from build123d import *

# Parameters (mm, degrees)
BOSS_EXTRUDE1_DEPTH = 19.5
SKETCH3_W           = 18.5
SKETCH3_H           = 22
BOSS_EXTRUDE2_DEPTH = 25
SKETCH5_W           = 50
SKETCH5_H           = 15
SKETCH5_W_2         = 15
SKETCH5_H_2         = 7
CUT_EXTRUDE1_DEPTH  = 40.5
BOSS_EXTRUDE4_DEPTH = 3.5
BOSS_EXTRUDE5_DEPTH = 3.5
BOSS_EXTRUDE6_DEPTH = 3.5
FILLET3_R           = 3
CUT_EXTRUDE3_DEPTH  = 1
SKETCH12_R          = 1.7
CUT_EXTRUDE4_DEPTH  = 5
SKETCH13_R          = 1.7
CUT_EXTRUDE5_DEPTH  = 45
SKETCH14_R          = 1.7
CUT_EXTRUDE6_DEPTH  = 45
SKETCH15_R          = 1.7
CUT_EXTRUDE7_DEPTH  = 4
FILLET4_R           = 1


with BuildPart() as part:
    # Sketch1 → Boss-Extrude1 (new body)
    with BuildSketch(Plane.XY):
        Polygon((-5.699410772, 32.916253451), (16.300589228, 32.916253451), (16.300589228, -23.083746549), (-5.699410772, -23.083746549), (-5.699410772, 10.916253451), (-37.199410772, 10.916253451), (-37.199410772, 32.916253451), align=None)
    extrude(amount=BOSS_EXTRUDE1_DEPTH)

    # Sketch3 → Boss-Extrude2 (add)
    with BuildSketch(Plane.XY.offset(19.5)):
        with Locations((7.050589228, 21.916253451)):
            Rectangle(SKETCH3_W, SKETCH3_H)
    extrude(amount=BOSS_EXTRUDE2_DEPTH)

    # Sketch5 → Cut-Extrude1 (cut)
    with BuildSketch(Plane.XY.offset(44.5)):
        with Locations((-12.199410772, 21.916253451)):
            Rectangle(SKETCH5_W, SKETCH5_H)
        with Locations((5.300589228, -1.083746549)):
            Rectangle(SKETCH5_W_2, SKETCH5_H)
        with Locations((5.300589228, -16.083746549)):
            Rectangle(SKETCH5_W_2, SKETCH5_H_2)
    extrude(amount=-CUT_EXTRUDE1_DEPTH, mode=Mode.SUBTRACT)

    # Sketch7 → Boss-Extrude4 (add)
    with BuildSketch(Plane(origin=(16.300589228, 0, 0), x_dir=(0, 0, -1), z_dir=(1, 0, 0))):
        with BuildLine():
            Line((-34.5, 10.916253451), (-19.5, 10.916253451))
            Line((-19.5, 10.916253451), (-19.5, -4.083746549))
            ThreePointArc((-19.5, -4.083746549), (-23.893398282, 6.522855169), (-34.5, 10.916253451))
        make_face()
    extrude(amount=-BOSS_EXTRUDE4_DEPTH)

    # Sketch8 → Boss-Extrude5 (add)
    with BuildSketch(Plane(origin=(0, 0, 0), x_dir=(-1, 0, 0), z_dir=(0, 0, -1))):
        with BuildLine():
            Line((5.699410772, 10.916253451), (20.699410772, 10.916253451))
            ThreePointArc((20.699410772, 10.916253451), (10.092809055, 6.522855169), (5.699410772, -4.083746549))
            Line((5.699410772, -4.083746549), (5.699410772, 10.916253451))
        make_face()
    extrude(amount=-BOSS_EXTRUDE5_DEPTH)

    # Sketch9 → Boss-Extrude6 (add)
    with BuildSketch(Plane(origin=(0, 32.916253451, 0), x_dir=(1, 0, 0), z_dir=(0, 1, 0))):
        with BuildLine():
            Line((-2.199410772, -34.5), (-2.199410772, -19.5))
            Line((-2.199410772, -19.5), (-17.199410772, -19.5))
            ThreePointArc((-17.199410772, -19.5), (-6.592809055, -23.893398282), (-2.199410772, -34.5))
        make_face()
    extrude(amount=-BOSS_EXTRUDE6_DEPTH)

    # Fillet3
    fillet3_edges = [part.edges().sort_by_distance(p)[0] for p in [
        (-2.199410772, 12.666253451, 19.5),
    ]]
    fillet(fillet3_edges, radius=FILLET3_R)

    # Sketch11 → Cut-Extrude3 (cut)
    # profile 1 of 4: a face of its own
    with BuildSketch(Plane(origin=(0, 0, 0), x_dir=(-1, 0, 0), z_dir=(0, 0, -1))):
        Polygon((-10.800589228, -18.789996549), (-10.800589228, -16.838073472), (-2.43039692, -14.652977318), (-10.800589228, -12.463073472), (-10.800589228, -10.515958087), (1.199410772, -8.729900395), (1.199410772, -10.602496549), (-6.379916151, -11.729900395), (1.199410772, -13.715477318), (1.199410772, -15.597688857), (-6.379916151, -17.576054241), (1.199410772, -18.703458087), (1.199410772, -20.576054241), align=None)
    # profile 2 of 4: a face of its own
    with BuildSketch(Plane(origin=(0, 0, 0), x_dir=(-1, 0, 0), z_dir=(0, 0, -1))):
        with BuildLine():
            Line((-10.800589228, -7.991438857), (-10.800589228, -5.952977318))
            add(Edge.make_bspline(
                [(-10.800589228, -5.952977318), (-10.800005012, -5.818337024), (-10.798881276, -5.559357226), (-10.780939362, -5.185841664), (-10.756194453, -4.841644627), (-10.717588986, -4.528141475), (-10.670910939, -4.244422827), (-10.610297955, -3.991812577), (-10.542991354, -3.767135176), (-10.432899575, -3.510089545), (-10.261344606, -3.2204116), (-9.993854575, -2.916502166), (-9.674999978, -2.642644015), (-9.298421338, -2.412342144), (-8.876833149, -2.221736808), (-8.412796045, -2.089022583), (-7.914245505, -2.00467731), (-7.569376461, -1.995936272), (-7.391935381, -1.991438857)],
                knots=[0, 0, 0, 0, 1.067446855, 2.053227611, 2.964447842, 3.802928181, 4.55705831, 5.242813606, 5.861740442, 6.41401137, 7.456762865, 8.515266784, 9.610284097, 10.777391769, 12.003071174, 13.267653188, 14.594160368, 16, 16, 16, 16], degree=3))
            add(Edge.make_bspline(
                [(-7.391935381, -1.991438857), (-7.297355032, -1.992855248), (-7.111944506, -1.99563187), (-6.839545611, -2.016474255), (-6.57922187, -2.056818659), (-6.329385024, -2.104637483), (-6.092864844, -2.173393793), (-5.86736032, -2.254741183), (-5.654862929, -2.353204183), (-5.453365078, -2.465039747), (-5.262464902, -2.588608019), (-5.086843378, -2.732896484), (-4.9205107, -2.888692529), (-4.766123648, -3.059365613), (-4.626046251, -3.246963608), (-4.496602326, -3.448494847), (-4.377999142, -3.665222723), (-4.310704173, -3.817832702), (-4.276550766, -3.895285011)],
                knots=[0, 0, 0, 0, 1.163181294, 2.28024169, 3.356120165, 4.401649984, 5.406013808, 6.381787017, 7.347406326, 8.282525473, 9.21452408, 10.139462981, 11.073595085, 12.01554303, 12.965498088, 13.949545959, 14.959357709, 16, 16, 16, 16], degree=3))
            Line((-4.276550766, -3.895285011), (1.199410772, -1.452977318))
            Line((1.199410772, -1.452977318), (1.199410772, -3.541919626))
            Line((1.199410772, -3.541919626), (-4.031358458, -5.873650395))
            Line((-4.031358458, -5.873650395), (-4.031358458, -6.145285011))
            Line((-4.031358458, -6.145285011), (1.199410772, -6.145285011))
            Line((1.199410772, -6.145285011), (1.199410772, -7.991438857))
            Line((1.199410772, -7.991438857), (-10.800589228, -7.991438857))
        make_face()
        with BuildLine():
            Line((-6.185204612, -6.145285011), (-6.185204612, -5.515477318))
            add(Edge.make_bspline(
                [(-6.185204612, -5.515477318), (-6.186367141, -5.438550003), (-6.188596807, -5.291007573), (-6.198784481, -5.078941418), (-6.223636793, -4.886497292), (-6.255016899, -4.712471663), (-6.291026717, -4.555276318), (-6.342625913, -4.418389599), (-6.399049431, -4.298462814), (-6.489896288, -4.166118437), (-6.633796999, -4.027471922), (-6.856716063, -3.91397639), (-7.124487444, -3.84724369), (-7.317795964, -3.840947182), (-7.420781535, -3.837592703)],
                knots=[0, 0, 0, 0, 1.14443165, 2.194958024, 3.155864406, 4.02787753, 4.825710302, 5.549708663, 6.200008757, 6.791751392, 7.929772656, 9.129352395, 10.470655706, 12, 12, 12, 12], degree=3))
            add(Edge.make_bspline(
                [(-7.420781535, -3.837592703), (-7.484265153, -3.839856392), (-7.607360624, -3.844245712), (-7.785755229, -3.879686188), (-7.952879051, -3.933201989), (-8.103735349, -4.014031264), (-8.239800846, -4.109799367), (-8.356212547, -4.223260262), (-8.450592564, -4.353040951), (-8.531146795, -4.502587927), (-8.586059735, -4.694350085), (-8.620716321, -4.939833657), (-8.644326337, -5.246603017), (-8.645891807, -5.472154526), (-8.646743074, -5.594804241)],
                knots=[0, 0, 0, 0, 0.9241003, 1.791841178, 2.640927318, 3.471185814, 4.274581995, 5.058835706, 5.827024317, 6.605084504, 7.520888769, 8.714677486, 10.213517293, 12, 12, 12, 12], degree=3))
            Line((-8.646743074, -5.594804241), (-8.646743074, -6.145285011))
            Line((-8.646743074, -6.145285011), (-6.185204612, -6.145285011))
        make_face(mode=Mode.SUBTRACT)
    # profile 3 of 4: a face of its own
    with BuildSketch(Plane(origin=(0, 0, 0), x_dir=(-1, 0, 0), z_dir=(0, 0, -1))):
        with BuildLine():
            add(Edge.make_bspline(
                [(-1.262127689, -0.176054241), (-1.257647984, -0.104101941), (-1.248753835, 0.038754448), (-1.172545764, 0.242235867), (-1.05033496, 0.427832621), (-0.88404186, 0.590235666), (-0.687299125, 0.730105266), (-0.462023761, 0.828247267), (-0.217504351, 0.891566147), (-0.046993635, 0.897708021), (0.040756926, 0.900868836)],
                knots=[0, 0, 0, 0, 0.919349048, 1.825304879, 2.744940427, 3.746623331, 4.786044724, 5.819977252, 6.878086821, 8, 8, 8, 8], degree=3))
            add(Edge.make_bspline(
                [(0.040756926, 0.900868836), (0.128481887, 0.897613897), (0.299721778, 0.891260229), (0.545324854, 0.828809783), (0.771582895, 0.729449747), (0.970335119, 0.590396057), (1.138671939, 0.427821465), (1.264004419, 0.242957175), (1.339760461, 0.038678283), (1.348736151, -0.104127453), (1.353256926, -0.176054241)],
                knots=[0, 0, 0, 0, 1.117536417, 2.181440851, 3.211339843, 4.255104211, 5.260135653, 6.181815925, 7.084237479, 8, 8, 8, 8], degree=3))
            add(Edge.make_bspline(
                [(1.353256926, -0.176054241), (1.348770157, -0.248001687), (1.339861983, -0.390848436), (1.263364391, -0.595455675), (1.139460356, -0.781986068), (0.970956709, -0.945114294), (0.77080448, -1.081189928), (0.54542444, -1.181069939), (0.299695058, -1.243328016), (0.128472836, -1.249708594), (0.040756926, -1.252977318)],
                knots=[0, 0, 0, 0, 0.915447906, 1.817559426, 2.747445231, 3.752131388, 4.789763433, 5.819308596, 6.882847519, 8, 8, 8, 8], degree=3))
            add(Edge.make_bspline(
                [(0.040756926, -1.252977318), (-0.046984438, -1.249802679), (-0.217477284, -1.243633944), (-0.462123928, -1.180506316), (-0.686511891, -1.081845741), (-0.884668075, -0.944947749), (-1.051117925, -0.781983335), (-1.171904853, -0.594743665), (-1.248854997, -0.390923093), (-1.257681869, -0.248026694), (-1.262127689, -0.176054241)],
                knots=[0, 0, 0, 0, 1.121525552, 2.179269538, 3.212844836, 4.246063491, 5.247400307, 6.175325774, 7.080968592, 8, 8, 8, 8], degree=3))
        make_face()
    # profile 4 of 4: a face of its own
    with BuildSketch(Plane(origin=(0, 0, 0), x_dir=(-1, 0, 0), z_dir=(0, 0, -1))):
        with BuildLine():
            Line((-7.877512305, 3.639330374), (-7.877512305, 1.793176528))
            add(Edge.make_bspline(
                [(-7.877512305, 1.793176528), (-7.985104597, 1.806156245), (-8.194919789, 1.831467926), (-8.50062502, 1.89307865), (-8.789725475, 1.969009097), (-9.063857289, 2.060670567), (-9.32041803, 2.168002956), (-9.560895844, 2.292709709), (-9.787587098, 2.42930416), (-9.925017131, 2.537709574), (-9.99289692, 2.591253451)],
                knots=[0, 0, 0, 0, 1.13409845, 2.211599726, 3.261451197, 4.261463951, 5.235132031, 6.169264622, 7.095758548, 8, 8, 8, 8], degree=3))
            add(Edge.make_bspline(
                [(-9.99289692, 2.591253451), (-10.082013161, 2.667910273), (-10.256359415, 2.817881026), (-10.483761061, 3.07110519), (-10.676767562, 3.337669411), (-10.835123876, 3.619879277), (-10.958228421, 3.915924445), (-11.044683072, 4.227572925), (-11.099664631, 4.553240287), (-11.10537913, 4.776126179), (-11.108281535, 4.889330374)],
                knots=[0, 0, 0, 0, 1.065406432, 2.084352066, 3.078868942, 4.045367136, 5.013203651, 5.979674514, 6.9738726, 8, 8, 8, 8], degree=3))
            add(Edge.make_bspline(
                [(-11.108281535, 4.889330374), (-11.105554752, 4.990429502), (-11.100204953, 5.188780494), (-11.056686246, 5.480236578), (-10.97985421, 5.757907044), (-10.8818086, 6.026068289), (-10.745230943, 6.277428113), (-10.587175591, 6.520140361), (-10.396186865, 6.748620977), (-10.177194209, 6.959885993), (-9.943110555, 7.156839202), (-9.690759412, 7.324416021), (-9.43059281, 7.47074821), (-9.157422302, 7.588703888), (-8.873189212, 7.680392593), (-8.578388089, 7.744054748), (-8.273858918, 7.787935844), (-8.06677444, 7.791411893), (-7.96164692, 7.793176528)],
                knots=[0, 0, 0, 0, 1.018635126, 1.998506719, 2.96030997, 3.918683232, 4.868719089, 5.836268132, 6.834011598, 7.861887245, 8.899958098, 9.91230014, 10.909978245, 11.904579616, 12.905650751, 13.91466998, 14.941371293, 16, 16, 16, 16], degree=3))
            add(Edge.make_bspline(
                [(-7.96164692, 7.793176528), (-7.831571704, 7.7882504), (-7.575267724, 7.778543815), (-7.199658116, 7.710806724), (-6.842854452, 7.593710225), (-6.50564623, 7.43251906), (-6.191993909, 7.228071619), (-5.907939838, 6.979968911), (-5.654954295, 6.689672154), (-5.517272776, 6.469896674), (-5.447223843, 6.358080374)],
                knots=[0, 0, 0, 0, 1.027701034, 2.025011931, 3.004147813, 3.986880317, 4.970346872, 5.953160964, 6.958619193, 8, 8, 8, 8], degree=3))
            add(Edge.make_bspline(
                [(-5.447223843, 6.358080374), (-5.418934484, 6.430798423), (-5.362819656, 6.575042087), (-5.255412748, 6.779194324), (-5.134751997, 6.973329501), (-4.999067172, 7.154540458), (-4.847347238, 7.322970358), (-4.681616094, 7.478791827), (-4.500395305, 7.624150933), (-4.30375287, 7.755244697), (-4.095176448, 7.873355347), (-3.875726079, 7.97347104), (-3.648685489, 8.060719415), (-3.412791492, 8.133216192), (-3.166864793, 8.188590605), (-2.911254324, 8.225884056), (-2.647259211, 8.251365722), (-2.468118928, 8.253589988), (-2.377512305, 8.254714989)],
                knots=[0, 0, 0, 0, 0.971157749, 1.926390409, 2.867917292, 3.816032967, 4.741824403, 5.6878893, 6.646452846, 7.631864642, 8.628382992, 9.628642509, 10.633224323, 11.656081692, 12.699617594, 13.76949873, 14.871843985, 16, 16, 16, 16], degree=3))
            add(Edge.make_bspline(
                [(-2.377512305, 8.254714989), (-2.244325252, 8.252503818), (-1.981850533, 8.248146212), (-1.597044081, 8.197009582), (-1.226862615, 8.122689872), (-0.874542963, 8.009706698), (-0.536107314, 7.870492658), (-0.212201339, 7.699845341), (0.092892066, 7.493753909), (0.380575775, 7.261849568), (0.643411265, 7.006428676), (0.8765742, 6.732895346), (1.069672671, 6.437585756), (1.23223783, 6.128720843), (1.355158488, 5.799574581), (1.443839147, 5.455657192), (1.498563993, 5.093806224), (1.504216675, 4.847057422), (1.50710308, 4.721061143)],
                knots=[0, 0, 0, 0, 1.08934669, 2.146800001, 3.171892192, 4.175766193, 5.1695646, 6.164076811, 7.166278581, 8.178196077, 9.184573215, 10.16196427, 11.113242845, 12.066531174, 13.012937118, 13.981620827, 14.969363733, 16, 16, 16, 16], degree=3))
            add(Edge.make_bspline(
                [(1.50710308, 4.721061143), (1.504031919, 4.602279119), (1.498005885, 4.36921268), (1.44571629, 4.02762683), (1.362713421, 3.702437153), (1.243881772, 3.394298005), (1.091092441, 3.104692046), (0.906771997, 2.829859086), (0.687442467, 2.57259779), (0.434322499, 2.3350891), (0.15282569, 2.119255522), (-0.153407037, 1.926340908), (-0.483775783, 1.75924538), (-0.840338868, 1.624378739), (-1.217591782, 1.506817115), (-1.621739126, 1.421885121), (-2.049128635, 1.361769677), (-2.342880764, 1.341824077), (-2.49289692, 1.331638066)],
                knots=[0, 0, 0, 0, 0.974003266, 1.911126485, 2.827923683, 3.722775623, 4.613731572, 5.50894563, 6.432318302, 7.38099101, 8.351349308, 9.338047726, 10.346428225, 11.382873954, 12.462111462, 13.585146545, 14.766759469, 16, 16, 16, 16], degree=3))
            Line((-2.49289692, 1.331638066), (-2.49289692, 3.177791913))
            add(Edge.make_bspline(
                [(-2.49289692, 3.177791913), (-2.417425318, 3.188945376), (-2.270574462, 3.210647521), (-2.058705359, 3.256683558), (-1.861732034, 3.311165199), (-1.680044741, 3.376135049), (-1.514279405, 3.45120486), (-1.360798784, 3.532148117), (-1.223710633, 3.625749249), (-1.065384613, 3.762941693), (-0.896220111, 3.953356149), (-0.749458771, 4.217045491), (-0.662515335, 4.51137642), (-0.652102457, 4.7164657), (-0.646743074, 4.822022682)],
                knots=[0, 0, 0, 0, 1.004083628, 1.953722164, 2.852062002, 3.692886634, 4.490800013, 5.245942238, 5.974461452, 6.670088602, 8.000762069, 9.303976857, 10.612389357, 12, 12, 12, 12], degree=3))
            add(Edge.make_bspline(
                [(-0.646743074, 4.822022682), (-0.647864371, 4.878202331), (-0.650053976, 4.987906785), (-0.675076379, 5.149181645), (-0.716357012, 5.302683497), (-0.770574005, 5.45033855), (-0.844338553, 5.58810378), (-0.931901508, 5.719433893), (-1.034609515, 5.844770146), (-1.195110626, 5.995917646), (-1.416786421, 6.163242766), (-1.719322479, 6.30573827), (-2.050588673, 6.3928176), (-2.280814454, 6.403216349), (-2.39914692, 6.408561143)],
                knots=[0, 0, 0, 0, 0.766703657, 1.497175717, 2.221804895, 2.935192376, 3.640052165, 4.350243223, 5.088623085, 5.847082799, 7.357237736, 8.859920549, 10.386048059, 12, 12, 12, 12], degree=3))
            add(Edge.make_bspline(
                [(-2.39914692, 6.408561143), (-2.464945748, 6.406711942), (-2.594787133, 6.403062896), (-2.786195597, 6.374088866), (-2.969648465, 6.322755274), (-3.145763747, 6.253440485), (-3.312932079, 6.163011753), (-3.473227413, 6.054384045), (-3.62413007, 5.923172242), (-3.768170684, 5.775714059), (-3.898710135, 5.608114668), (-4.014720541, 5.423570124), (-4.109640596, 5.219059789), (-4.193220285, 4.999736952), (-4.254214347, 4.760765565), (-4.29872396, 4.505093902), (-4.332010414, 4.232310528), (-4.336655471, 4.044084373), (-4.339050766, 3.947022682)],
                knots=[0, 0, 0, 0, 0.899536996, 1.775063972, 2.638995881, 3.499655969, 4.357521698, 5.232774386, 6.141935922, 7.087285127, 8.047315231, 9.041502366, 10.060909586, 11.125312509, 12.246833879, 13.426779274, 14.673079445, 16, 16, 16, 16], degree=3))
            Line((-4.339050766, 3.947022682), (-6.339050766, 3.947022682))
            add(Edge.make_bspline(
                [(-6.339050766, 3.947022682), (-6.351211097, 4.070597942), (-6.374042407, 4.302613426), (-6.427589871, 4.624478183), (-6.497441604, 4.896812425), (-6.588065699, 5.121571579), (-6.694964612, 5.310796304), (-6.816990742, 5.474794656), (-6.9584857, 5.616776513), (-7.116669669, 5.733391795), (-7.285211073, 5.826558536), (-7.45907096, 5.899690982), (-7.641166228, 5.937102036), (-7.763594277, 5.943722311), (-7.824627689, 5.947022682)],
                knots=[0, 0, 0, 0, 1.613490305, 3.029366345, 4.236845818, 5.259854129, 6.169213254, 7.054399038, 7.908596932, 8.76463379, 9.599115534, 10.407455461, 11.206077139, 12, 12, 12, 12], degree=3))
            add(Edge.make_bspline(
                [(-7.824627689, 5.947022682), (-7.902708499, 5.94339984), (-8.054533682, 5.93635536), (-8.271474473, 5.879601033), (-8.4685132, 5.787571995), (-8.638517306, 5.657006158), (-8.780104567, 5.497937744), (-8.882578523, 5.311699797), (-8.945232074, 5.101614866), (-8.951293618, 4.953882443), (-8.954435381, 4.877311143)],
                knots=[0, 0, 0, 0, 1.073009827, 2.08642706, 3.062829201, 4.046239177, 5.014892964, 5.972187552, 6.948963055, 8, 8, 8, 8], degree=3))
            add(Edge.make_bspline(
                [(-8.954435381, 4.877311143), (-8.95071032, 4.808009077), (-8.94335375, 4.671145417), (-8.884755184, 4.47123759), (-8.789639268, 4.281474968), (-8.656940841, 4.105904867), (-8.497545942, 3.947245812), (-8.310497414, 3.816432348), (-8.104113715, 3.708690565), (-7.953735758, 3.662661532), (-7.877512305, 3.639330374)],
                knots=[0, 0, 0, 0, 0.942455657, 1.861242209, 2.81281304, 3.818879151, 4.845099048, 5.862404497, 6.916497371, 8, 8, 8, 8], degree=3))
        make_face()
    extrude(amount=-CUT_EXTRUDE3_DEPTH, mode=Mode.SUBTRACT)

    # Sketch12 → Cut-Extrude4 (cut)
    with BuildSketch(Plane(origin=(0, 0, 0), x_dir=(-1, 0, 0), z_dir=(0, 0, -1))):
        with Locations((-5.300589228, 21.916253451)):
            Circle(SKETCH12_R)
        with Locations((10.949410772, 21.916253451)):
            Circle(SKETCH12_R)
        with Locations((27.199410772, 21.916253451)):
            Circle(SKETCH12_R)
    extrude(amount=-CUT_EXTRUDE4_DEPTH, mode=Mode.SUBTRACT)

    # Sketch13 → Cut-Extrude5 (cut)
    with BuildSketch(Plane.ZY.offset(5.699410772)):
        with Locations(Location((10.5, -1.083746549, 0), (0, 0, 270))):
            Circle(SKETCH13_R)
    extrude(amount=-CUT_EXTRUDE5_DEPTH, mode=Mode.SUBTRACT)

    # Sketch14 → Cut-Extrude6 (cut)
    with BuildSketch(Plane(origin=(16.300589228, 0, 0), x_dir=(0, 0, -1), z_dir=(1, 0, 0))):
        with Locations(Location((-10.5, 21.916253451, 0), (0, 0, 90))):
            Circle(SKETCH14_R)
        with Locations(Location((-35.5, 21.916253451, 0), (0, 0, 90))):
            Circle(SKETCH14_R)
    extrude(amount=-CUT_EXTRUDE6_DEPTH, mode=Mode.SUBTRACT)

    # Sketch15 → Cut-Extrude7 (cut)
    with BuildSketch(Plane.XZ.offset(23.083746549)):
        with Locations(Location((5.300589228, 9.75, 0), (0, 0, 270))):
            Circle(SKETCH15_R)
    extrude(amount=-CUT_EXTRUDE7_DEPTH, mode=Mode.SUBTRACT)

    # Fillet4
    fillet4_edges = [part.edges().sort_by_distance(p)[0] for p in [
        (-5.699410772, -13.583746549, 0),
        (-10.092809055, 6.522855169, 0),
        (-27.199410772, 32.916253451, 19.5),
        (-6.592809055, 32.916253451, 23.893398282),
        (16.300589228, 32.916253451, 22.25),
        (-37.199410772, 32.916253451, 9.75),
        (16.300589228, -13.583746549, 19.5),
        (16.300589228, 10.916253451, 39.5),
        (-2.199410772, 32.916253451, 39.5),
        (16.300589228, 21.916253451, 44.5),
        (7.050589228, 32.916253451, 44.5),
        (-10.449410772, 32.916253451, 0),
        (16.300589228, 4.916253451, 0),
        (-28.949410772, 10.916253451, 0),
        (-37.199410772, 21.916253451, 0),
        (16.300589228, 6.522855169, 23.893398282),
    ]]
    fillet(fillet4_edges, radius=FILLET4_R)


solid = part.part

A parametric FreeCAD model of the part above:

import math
import FreeCAD as App
import Part
import Sketcher
from FreeCAD import Vector


def edges_at(feature, points):
    """Names of the edges that pass closest to the given points."""
    edges = feature.Shape.Edges
    near = lambda p: min(range(len(edges)), key=lambda i: edges[i].distToShape(Part.Vertex(*p))[0])
    return sorted({f"Edge{near(p) + 1}" for p in points})


def add_polygon(sketch, points):
    """Adds a closed chain of lines whose ends are joined by coincident constraints."""
    first, n = sketch.GeometryCount, len(points)
    for a, b in zip(points, points[1:] + points[:1]):
        sketch.addGeometry(Part.LineSegment(App.Vector(*a, 0), App.Vector(*b, 0)), False)
    for i in range(n):
        sketch.addConstraint(Sketcher.Constraint("Coincident", first + i, 2, first + (i + 1) % n, 1))

doc = App.newDocument("Part")
body = doc.addObject("PartDesign::Body", "Body")

# Sketch on XY plane
sketch1 = doc.addObject("Sketcher::SketchObject", "Sketch")
body.addObject(sketch1)
sketch1.AttachmentSupport = (doc.XY_Plane, [""])
sketch1.MapMode = "FlatFace"
add_polygon(sketch1, [(16, 33), (-37, 33), (-37, 11), (-6, 11), (-6, -23), (16, -23)])  # lines 0-5
sketch1.addConstraint([
    Sketcher.Constraint("Horizontal", 0),
    Sketcher.Constraint("Vertical", 1),
    Sketcher.Constraint("Horizontal", 2),
    Sketcher.Constraint("Vertical", 3),
    Sketcher.Constraint("Horizontal", 4),
    Sketcher.Constraint("Vertical", 5),
    Sketcher.Constraint("Equal", 4, 1),
    Sketcher.Constraint("DistanceX", 4, 1, 4, 2, 22.0),
    Sketcher.Constraint("DistanceY", 3, 2, 3, 1, 34.0),
    Sketcher.Constraint("DistanceX", 0, 2, 0, 1, 53.5),
    Sketcher.Constraint("DistanceX", 0, 2, -1, 1, 37.199411),
    Sketcher.Constraint("DistanceY", -1, 1, 0, 2, 32.916253),
])
pad1 = doc.addObject("PartDesign::Pad", "Pad")
body.addObject(pad1)
pad1.Profile = sketch1
pad1.Length = 19.5

# Sketch on XY plane
sketch2 = doc.addObject("Sketcher::SketchObject", "Sketch001")
body.addObject(sketch2)
sketch2.AttachmentSupport = (doc.XY_Plane, [""])
sketch2.MapMode = "FlatFace"
sketch2.AttachmentOffset = App.Placement(Vector(0, 0, 19.5), App.Rotation())
add_polygon(sketch2, [(-2, 33), (-2, 11), (16, 11), (16, 33)])  # lines 0-3
sketch2.addConstraint([
    Sketcher.Constraint("Vertical", 0),
    Sketcher.Constraint("Horizontal", 1),
    Sketcher.Constraint("Vertical", 2),
    Sketcher.Constraint("Horizontal", 3),
    Sketcher.Constraint("DistanceY", 0, 2, 0, 1, 22.0),
    Sketcher.Constraint("DistanceX", 1, 1, 1, 2, 18.5),
    Sketcher.Constraint("DistanceX", 0, 2, -1, 1, 2.199411),
    Sketcher.Constraint("DistanceY", -1, 1, 0, 2, 10.916253),
])
pad2 = doc.addObject("PartDesign::Pad", "Pad001")
body.addObject(pad2)
pad2.Profile = sketch2
pad2.Length = 25

# Sketch on XY plane
sketch3 = doc.addObject("Sketcher::SketchObject", "Sketch002")
body.addObject(sketch3)
sketch3.AttachmentSupport = (doc.XY_Plane, [""])
sketch3.MapMode = "FlatFace"
sketch3.AttachmentOffset = App.Placement(Vector(0, 0, 44.5), App.Rotation())
add_polygon(sketch3, [(-37, 29), (-37, 14), (13, 14), (13, 29)])  # lines 0-3
add_polygon(sketch3, [(-2, 6), (-2, -9), (13, -9), (13, 6)])  # lines 4-7
add_polygon(sketch3, [(-2, -13), (-2, -20), (13, -20), (13, -13)])  # lines 8-11
sketch3.addConstraint([
    Sketcher.Constraint("Vertical", 0),
    Sketcher.Constraint("Horizontal", 1),
    Sketcher.Constraint("Vertical", 2),
    Sketcher.Constraint("Horizontal", 3),
    Sketcher.Constraint("Vertical", 4),
    Sketcher.Constraint("Horizontal", 5),
    Sketcher.Constraint("Vertical", 6),
    Sketcher.Constraint("Horizontal", 7),
    Sketcher.Constraint("Vertical", 8),
    Sketcher.Constraint("Horizontal", 9),
    Sketcher.Constraint("Vertical", 10),
    Sketcher.Constraint("Horizontal", 11),
    Sketcher.Constraint("Vertical", 2, 2, 5, 2),
    Sketcher.Constraint("Vertical", 7, 2, 8, 2),
    Sketcher.Constraint("Vertical", 6, 2, 9, 2),
    Sketcher.Constraint("Equal", 11, 0),
    Sketcher.Constraint("Equal", 2, 4),
    Sketcher.Constraint("DistanceX", 1, 1, 1, 2, 50.0),
    Sketcher.Constraint("DistanceX", 5, 1, 5, 2, 15.0),
    Sketcher.Constraint("DistanceY", 8, 2, 8, 1, 7.0),
    Sketcher.Constraint("DistanceY", 4, 2, 1, 2, 23.0),
    Sketcher.Constraint("DistanceY", 8, 2, 4, 2, 11.0),
    Sketcher.Constraint("DistanceX", 0, 2, -1, 1, 37.199411),
    Sketcher.Constraint("DistanceY", -1, 1, 0, 2, 14.416253),
])
pocket1 = doc.addObject("PartDesign::Pocket", "Pocket")
body.addObject(pocket1)
pocket1.Profile = sketch3
pocket1.Length = 40.5

# Sketch on YZ plane
sketch4 = doc.addObject("Sketcher::SketchObject", "Sketch003")
body.addObject(sketch4)
sketch4.AttachmentSupport = (doc.YZ_Plane, [""])
sketch4.MapMode = "FlatFace"
sketch4.AttachmentOffset = App.Placement(Vector(0, 0, 16.300589), App.Rotation())
sketch4.addGeometry([
    Part.LineSegment(Vector(11, 20, 0), Vector(11, 34, 0)),
    Part.ArcOfCircle(Part.Circle(Vector(-4, 34, 0), Vector(0, 0, 1), 15), math.radians(-90), math.radians(0)),
    Part.LineSegment(Vector(-4, 20, 0), Vector(11, 20, 0)),
], False)
sketch4.addConstraint([
    Sketcher.Constraint("Tangent", 0, 2, 1, 2),
    Sketcher.Constraint("Tangent", 1, 1, 2, 1),
    Sketcher.Constraint("Coincident", 2, 2, 0, 1),
    Sketcher.Constraint("Vertical", 0),
    Sketcher.Constraint("Horizontal", 2),
    Sketcher.Constraint("Radius", 1, 15.0),
    Sketcher.Constraint("DistanceY", -1, 1, 1, 3, 34.5),
    Sketcher.Constraint("DistanceX", 1, 3, -1, 1, 4.083747),
])
pad3 = doc.addObject("PartDesign::Pad", "Pad002")
body.addObject(pad3)
pad3.Profile = sketch4
pad3.Length = 3.5
pad3.Reversed = True

# Sketch on XY plane
sketch5 = doc.addObject("Sketcher::SketchObject", "Sketch004")
body.addObject(sketch5)
sketch5.AttachmentSupport = (doc.XY_Plane, [""])
sketch5.MapMode = "FlatFace"
sketch5.addGeometry([
    Part.LineSegment(Vector(-21, 11, 0), Vector(-6, 11, 0)),
    Part.LineSegment(Vector(-6, 11, 0), Vector(-6, -4, 0)),
    Part.ArcOfCircle(Part.Circle(Vector(-21, -4, 0), Vector(0, 0, 1), 15), math.radians(0), math.radians(90)),
], False)
sketch5.addConstraint([
    Sketcher.Constraint("Coincident", 0, 2, 1, 1),
    Sketcher.Constraint("Tangent", 1, 2, 2, 1),
    Sketcher.Constraint("Tangent", 2, 2, 0, 1),
    Sketcher.Constraint("Horizontal", 0),
    Sketcher.Constraint("Vertical", 1),
    Sketcher.Constraint("Radius", 2, 15.0),
    Sketcher.Constraint("DistanceX", 2, 3, -1, 1, 20.699411),
    Sketcher.Constraint("DistanceY", 2, 3, -1, 1, 4.083747),
])
pad4 = doc.addObject("PartDesign::Pad", "Pad003")
body.addObject(pad4)
pad4.Profile = sketch5
pad4.Length = 3.5

# Sketch on XZ plane
sketch6 = doc.addObject("Sketcher::SketchObject", "Sketch005")
body.addObject(sketch6)
sketch6.AttachmentSupport = (doc.XZ_Plane, [""])
sketch6.MapMode = "FlatFace"
sketch6.AttachmentOffset = App.Placement(Vector(0, 0, -32.916253), App.Rotation())
sketch6.addGeometry([
    Part.LineSegment(Vector(-2, 34, 0), Vector(-2, 20, 0)),
    Part.LineSegment(Vector(-2, 20, 0), Vector(-17, 20, 0)),
    Part.ArcOfCircle(Part.Circle(Vector(-17, 35, 0), Vector(0, 0, 1), 15), math.radians(-90), math.radians(0)),
], False)
sketch6.addConstraint([
    Sketcher.Constraint("Coincident", 0, 2, 1, 1),
    Sketcher.Constraint("Tangent", 1, 2, 2, 1),
    Sketcher.Constraint("Tangent", 2, 2, 0, 1),
    Sketcher.Constraint("Vertical", 0),
    Sketcher.Constraint("Horizontal", 1),
    Sketcher.Constraint("Radius", 2, 15.0),
    Sketcher.Constraint("DistanceY", -1, 1, 2, 3, 34.5),
    Sketcher.Constraint("DistanceX", 2, 3, -1, 1, 17.199411),
])
pad5 = doc.addObject("PartDesign::Pad", "Pad004")
body.addObject(pad5)
pad5.Profile = sketch6
pad5.Length = 3.5
doc.recompute()

fillet = doc.addObject("PartDesign::Fillet", "Fillet")
body.addObject(fillet)
fillet.Base = (pad5, edges_at(pad5, [(-2.199, 12.666, 19.5)]))
fillet.Radius = 3

# Sketch on XY plane
sketch7 = doc.addObject("Sketcher::SketchObject", "Sketch006")
body.addObject(sketch7)
sketch7.AttachmentSupport = (doc.XY_Plane, [""])
sketch7.MapMode = "FlatFace"
add_polygon(sketch7, [(10.800589, -16.838073), (10.800589, -18.789997), (-1.199411, -20.576054), (-1.199411, -18.703458), (6.379916, -17.576054), (-1.199411, -15.597689), (-1.199411, -13.715477), (6.379916, -11.7299), (-1.199411, -10.602497), (-1.199411, -8.7299), (10.800589, -10.515958), (10.800589, -12.463073), (2.430397, -14.652977)])  # lines 0-12
sketch7.addGeometry(Part.LineSegment(Vector(10.800589, -5.952977, 0), Vector(10.800589, -7.991439, 0)), False)  # 13
sketch7.addGeometry(Part.LineSegment(Vector(10.800589, -7.991439, 0), Vector(-1.199411, -7.991439, 0)), False)  # 14
sketch7.addGeometry(Part.LineSegment(Vector(-1.199411, -7.991439, 0), Vector(-1.199411, -6.145285, 0)), False)  # 15
sketch7.addGeometry(Part.LineSegment(Vector(-1.199411, -6.145285, 0), Vector(4.031358, -6.145285, 0)), False)  # 16
sketch7.addGeometry(Part.LineSegment(Vector(4.031358, -6.145285, 0), Vector(4.031358, -5.87365, 0)), False)  # 17
sketch7.addGeometry(Part.LineSegment(Vector(4.031358, -5.87365, 0), Vector(-1.199411, -3.54192, 0)), False)  # 18
sketch7.addGeometry(Part.LineSegment(Vector(-1.199411, -3.54192, 0), Vector(-1.199411, -1.452977, 0)), False)  # 19
sketch7.addGeometry(Part.LineSegment(Vector(-1.199411, -1.452977, 0), Vector(4.276551, -3.895285, 0)), False)  # 20
sketch7.addGeometry(Part.BSplineCurve([Vector(7.391935, -1.991439, 0), Vector(7.297355, -1.992855, 0), Vector(7.111945, -1.995632, 0), Vector(6.839546, -2.016474, 0), Vector(6.579222, -2.056819, 0), Vector(6.329385, -2.104637, 0), Vector(6.092865, -2.173394, 0), Vector(5.86736, -2.254741, 0), Vector(5.654863, -2.353204, 0), Vector(5.453365, -2.46504, 0), Vector(5.262465, -2.588608, 0), Vector(5.086843, -2.732896, 0), Vector(4.920511, -2.888693, 0), Vector(4.766124, -3.059366, 0), Vector(4.626046, -3.246964, 0), Vector(4.496602, -3.448495, 0), Vector(4.377999, -3.665223, 0), Vector(4.310704, -3.817833, 0), Vector(4.276551, -3.895285, 0)], [4, 1, 1, 1, 1, 1, 1, 1, 1, 1, 1, 1, 1, 1, 1, 1, 4], [0, 1.163181294, 2.28024169, 3.356120165, 4.401649984, 5.406013808, 6.381787017, 7.347406326, 8.282525473, 9.21452408, 10.139462981, 11.073595085, 12.01554303, 12.965498088, 13.949545959, 14.959357709, 16], False, 3, [1, 1, 1, 1, 1, 1, 1, 1, 1, 1, 1, 1, 1, 1, 1, 1, 1, 1, 1], False), False)  # 21
sketch7.addGeometry(Part.BSplineCurve([Vector(10.800589, -5.952977, 0), Vector(10.800005, -5.818337, 0), Vector(10.798881, -5.559357, 0), Vector(10.780939, -5.185842, 0), Vector(10.756194, -4.841645, 0), Vector(10.717589, -4.528141, 0), Vector(10.670911, -4.244423, 0), Vector(10.610298, -3.991813, 0), Vector(10.542991, -3.767135, 0), Vector(10.4329, -3.51009, 0), Vector(10.261345, -3.220412, 0), Vector(9.993855, -2.916502, 0), Vector(9.675, -2.642644, 0), Vector(9.298421, -2.412342, 0), Vector(8.876833, -2.221737, 0), Vector(8.412796, -2.089023, 0), Vector(7.914246, -2.004677, 0), Vector(7.569376, -1.995936, 0), Vector(7.391935, -1.991439, 0)], [4, 1, 1, 1, 1, 1, 1, 1, 1, 1, 1, 1, 1, 1, 1, 1, 4], [0, 1.067446855, 2.053227611, 2.964447842, 3.802928181, 4.55705831, 5.242813606, 5.861740442, 6.41401137, 7.456762865, 8.515266784, 9.610284097, 10.777391769, 12.003071174, 13.267653188, 14.594160368, 16], False, 3, [1, 1, 1, 1, 1, 1, 1, 1, 1, 1, 1, 1, 1, 1, 1, 1, 1, 1, 1], False), False)  # 22
sketch7.addGeometry(Part.LineSegment(Vector(6.185205, -6.145285, 0), Vector(8.646743, -6.145285, 0)), False)  # 23
sketch7.addGeometry(Part.LineSegment(Vector(8.646743, -6.145285, 0), Vector(8.646743, -5.594804, 0)), False)  # 24
sketch7.addGeometry(Part.BSplineCurve([Vector(7.420782, -3.837593, 0), Vector(7.484265, -3.839856, 0), Vector(7.607361, -3.844246, 0), Vector(7.785755, -3.879686, 0), Vector(7.952879, -3.933202, 0), Vector(8.103735, -4.014031, 0), Vector(8.239801, -4.109799, 0), Vector(8.356213, -4.22326, 0), Vector(8.450593, -4.353041, 0), Vector(8.531147, -4.502588, 0), Vector(8.58606, -4.69435, 0), Vector(8.620716, -4.939834, 0), Vector(8.644326, -5.246603, 0), Vector(8.645892, -5.472155, 0), Vector(8.646743, -5.594804, 0)], [4, 1, 1, 1, 1, 1, 1, 1, 1, 1, 1, 1, 4], [0, 0.9241003, 1.791841178, 2.640927318, 3.471185814, 4.274581995, 5.058835706, 5.827024317, 6.605084504, 7.520888769, 8.714677486, 10.213517293, 12], False, 3, [1, 1, 1, 1, 1, 1, 1, 1, 1, 1, 1, 1, 1, 1, 1], False), False)  # 25
sketch7.addGeometry(Part.BSplineCurve([Vector(6.185205, -5.515477, 0), Vector(6.186367, -5.43855, 0), Vector(6.188597, -5.291008, 0), Vector(6.198784, -5.078941, 0), Vector(6.223637, -4.886497, 0), Vector(6.255017, -4.712472, 0), Vector(6.291027, -4.555276, 0), Vector(6.342626, -4.41839, 0), Vector(6.399049, -4.298463, 0), Vector(6.489896, -4.166118, 0), Vector(6.633797, -4.027472, 0), Vector(6.856716, -3.913976, 0), Vector(7.124487, -3.847244, 0), Vector(7.317796, -3.840947, 0), Vector(7.420782, -3.837593, 0)], [4, 1, 1, 1, 1, 1, 1, 1, 1, 1, 1, 1, 4], [0, 1.14443165, 2.194958024, 3.155864406, 4.02787753, 4.825710302, 5.549708663, 6.200008757, 6.791751392, 7.929772656, 9.129352395, 10.470655706, 12], False, 3, [1, 1, 1, 1, 1, 1, 1, 1, 1, 1, 1, 1, 1, 1, 1], False), False)  # 26
sketch7.addGeometry(Part.LineSegment(Vector(6.185205, -5.515477, 0), Vector(6.185205, -6.145285, 0)), False)  # 27
sketch7.addGeometry(Part.BSplineCurve([Vector(1.262128, -0.176054, 0), Vector(1.257648, -0.104102, 0), Vector(1.248754, 0.038754, 0), Vector(1.172546, 0.242236, 0), Vector(1.050335, 0.427833, 0), Vector(0.884042, 0.590236, 0), Vector(0.687299, 0.730105, 0), Vector(0.462024, 0.828247, 0), Vector(0.217504, 0.891566, 0), Vector(0.046994, 0.897708, 0), Vector(-0.040757, 0.900869, 0)], [4, 1, 1, 1, 1, 1, 1, 1, 4], [0, 0.919349048, 1.825304879, 2.744940427, 3.746623331, 4.786044724, 5.819977252, 6.878086821, 8], False, 3, [1, 1, 1, 1, 1, 1, 1, 1, 1, 1, 1], False), False)  # 28
sketch7.addGeometry(Part.BSplineCurve([Vector(-0.040757, -1.252977, 0), Vector(0.046984, -1.249803, 0), Vector(0.217477, -1.243634, 0), Vector(0.462124, -1.180506, 0), Vector(0.686512, -1.081846, 0), Vector(0.884668, -0.944948, 0), Vector(1.051118, -0.781983, 0), Vector(1.171905, -0.594744, 0), Vector(1.248855, -0.390923, 0), Vector(1.257682, -0.248027, 0), Vector(1.262128, -0.176054, 0)], [4, 1, 1, 1, 1, 1, 1, 1, 4], [0, 1.121525552, 2.179269538, 3.212844836, 4.246063491, 5.247400307, 6.175325774, 7.080968592, 8], False, 3, [1, 1, 1, 1, 1, 1, 1, 1, 1, 1, 1], False), False)  # 29
sketch7.addGeometry(Part.BSplineCurve([Vector(-1.353257, -0.176054, 0), Vector(-1.34877, -0.248002, 0), Vector(-1.339862, -0.390848, 0), Vector(-1.263364, -0.595456, 0), Vector(-1.13946, -0.781986, 0), Vector(-0.970957, -0.945114, 0), Vector(-0.770804, -1.08119, 0), Vector(-0.545424, -1.18107, 0), Vector(-0.299695, -1.243328, 0), Vector(-0.128473, -1.249709, 0), Vector(-0.040757, -1.252977, 0)], [4, 1, 1, 1, 1, 1, 1, 1, 4], [0, 0.915447906, 1.817559426, 2.747445231, 3.752131388, 4.789763433, 5.819308596, 6.882847519, 8], False, 3, [1, 1, 1, 1, 1, 1, 1, 1, 1, 1, 1], False), False)  # 30
sketch7.addGeometry(Part.BSplineCurve([Vector(-0.040757, 0.900869, 0), Vector(-0.128482, 0.897614, 0), Vector(-0.299722, 0.89126, 0), Vector(-0.545325, 0.82881, 0), Vector(-0.771583, 0.72945, 0), Vector(-0.970335, 0.590396, 0), Vector(-1.138672, 0.427821, 0), Vector(-1.264004, 0.242957, 0), Vector(-1.33976, 0.038678, 0), Vector(-1.348736, -0.104127, 0), Vector(-1.353257, -0.176054, 0)], [4, 1, 1, 1, 1, 1, 1, 1, 4], [0, 1.117536417, 2.181440851, 3.211339843, 4.255104211, 5.260135653, 6.181815925, 7.084237479, 8], False, 3, [1, 1, 1, 1, 1, 1, 1, 1, 1, 1, 1], False), False)  # 31
sketch7.addGeometry(Part.LineSegment(Vector(7.877512, 1.793177, 0), Vector(7.877512, 3.63933, 0)), False)  # 32
sketch7.addGeometry(Part.BSplineCurve([Vector(8.954435, 4.877311, 0), Vector(8.95071, 4.808009, 0), Vector(8.943354, 4.671145, 0), Vector(8.884755, 4.471238, 0), Vector(8.789639, 4.281475, 0), Vector(8.656941, 4.105905, 0), Vector(8.497546, 3.947246, 0), Vector(8.310497, 3.816432, 0), Vector(8.104114, 3.708691, 0), Vector(7.953736, 3.662662, 0), Vector(7.877512, 3.63933, 0)], [4, 1, 1, 1, 1, 1, 1, 1, 4], [0, 0.942455657, 1.861242209, 2.81281304, 3.818879151, 4.845099048, 5.862404497, 6.916497371, 8], False, 3, [1, 1, 1, 1, 1, 1, 1, 1, 1, 1, 1], False), False)  # 33
sketch7.addGeometry(Part.BSplineCurve([Vector(7.824628, 5.947023, 0), Vector(7.902708, 5.9434, 0), Vector(8.054534, 5.936355, 0), Vector(8.271474, 5.879601, 0), Vector(8.468513, 5.787572, 0), Vector(8.638517, 5.657006, 0), Vector(8.780105, 5.497938, 0), Vector(8.882579, 5.3117, 0), Vector(8.945232, 5.101615, 0), Vector(8.951294, 4.953882, 0), Vector(8.954435, 4.877311, 0)], [4, 1, 1, 1, 1, 1, 1, 1, 4], [0, 1.073009827, 2.08642706, 3.062829201, 4.046239177, 5.014892964, 5.972187552, 6.948963055, 8], False, 3, [1, 1, 1, 1, 1, 1, 1, 1, 1, 1, 1], False), False)  # 34
sketch7.addGeometry(Part.BSplineCurve([Vector(6.339051, 3.947023, 0), Vector(6.351211, 4.070598, 0), Vector(6.374042, 4.302613, 0), Vector(6.42759, 4.624478, 0), Vector(6.497442, 4.896812, 0), Vector(6.588066, 5.121572, 0), Vector(6.694965, 5.310796, 0), Vector(6.816991, 5.474795, 0), Vector(6.958486, 5.616777, 0), Vector(7.11667, 5.733392, 0), Vector(7.285211, 5.826559, 0), Vector(7.459071, 5.899691, 0), Vector(7.641166, 5.937102, 0), Vector(7.763594, 5.943722, 0), Vector(7.824628, 5.947023, 0)], [4, 1, 1, 1, 1, 1, 1, 1, 1, 1, 1, 1, 4], [0, 1.613490305, 3.029366345, 4.236845818, 5.259854129, 6.169213254, 7.054399038, 7.908596932, 8.76463379, 9.599115534, 10.407455461, 11.206077139, 12], False, 3, [1, 1, 1, 1, 1, 1, 1, 1, 1, 1, 1, 1, 1, 1, 1], False), False)  # 35
sketch7.addGeometry(Part.LineSegment(Vector(6.339051, 3.947023, 0), Vector(4.339051, 3.947023, 0)), False)  # 36
sketch7.addGeometry(Part.BSplineCurve([Vector(2.399147, 6.408561, 0), Vector(2.464946, 6.406712, 0), Vector(2.594787, 6.403063, 0), Vector(2.786196, 6.374089, 0), Vector(2.969648, 6.322755, 0), Vector(3.145764, 6.25344, 0), Vector(3.312932, 6.163012, 0), Vector(3.473227, 6.054384, 0), Vector(3.62413, 5.923172, 0), Vector(3.768171, 5.775714, 0), Vector(3.89871, 5.608115, 0), Vector(4.014721, 5.42357, 0), Vector(4.109641, 5.21906, 0), Vector(4.19322, 4.999737, 0), Vector(4.254214, 4.760766, 0), Vector(4.298724, 4.505094, 0), Vector(4.33201, 4.232311, 0), Vector(4.336655, 4.044084, 0), Vector(4.339051, 3.947023, 0)], [4, 1, 1, 1, 1, 1, 1, 1, 1, 1, 1, 1, 1, 1, 1, 1, 4], [0, 0.899536996, 1.775063972, 2.638995881, 3.499655969, 4.357521698, 5.232774386, 6.141935922, 7.087285127, 8.047315231, 9.041502366, 10.060909586, 11.125312509, 12.246833879, 13.426779274, 14.673079445, 16], False, 3, [1, 1, 1, 1, 1, 1, 1, 1, 1, 1, 1, 1, 1, 1, 1, 1, 1, 1, 1], False), False)  # 37
sketch7.addGeometry(Part.BSplineCurve([Vector(0.646743, 4.822023, 0), Vector(0.647864, 4.878202, 0), Vector(0.650054, 4.987907, 0), Vector(0.675076, 5.149182, 0), Vector(0.716357, 5.302683, 0), Vector(0.770574, 5.450339, 0), Vector(0.844339, 5.588104, 0), Vector(0.931902, 5.719434, 0), Vector(1.03461, 5.84477, 0), Vector(1.195111, 5.995918, 0), Vector(1.416786, 6.163243, 0), Vector(1.719322, 6.305738, 0), Vector(2.050589, 6.392818, 0), Vector(2.280814, 6.403216, 0), Vector(2.399147, 6.408561, 0)], [4, 1, 1, 1, 1, 1, 1, 1, 1, 1, 1, 1, 4], [0, 0.766703657, 1.497175717, 2.221804895, 2.935192376, 3.640052165, 4.350243223, 5.088623085, 5.847082799, 7.357237736, 8.859920549, 10.386048059, 12], False, 3, [1, 1, 1, 1, 1, 1, 1, 1, 1, 1, 1, 1, 1, 1, 1], False), False)  # 38
sketch7.addGeometry(Part.BSplineCurve([Vector(2.492897, 3.177792, 0), Vector(2.417425, 3.188945, 0), Vector(2.270574, 3.210648, 0), Vector(2.058705, 3.256684, 0), Vector(1.861732, 3.311165, 0), Vector(1.680045, 3.376135, 0), Vector(1.514279, 3.451205, 0), Vector(1.360799, 3.532148, 0), Vector(1.223711, 3.625749, 0), Vector(1.065385, 3.762942, 0), Vector(0.89622, 3.953356, 0), Vector(0.749459, 4.217045, 0), Vector(0.662515, 4.511376, 0), Vector(0.652102, 4.716466, 0), Vector(0.646743, 4.822023, 0)], [4, 1, 1, 1, 1, 1, 1, 1, 1, 1, 1, 1, 4], [0, 1.004083628, 1.953722164, 2.852062002, 3.692886634, 4.490800013, 5.245942238, 5.974461452, 6.670088602, 8.000762069, 9.303976857, 10.612389357, 12], False, 3, [1, 1, 1, 1, 1, 1, 1, 1, 1, 1, 1, 1, 1, 1, 1], False), False)  # 39
sketch7.addGeometry(Part.LineSegment(Vector(2.492897, 3.177792, 0), Vector(2.492897, 1.331638, 0)), False)  # 40
sketch7.addGeometry(Part.BSplineCurve([Vector(-1.507103, 4.721061, 0), Vector(-1.504032, 4.602279, 0), Vector(-1.498006, 4.369213, 0), Vector(-1.445716, 4.027627, 0), Vector(-1.362713, 3.702437, 0), Vector(-1.243882, 3.394298, 0), Vector(-1.091092, 3.104692, 0), Vector(-0.906772, 2.829859, 0), Vector(-0.687442, 2.572598, 0), Vector(-0.434322, 2.335089, 0), Vector(-0.152826, 2.119256, 0), Vector(0.153407, 1.926341, 0), Vector(0.483776, 1.759245, 0), Vector(0.840339, 1.624379, 0), Vector(1.217592, 1.506817, 0), Vector(1.621739, 1.421885, 0), Vector(2.049129, 1.36177, 0), Vector(2.342881, 1.341824, 0), Vector(2.492897, 1.331638, 0)], [4, 1, 1, 1, 1, 1, 1, 1, 1, 1, 1, 1, 1, 1, 1, 1, 4], [0, 0.974003266, 1.911126485, 2.827923683, 3.722775623, 4.613731572, 5.50894563, 6.432318302, 7.38099101, 8.351349308, 9.338047726, 10.346428225, 11.382873954, 12.462111462, 13.585146545, 14.766759469, 16], False, 3, [1, 1, 1, 1, 1, 1, 1, 1, 1, 1, 1, 1, 1, 1, 1, 1, 1, 1, 1], False), False)  # 41
sketch7.addGeometry(Part.BSplineCurve([Vector(2.377512, 8.254715, 0), Vector(2.244325, 8.252504, 0), Vector(1.981851, 8.248146, 0), Vector(1.597044, 8.19701, 0), Vector(1.226863, 8.12269, 0), Vector(0.874543, 8.009707, 0), Vector(0.536107, 7.870493, 0), Vector(0.212201, 7.699845, 0), Vector(-0.092892, 7.493754, 0), Vector(-0.380576, 7.26185, 0), Vector(-0.643411, 7.006429, 0), Vector(-0.876574, 6.732895, 0), Vector(-1.069673, 6.437586, 0), Vector(-1.232238, 6.128721, 0), Vector(-1.355158, 5.799575, 0), Vector(-1.443839, 5.455657, 0), Vector(-1.498564, 5.093806, 0), Vector(-1.504217, 4.847057, 0), Vector(-1.507103, 4.721061, 0)], [4, 1, 1, 1, 1, 1, 1, 1, 1, 1, 1, 1, 1, 1, 1, 1, 4], [0, 1.08934669, 2.146800001, 3.171892192, 4.175766193, 5.1695646, 6.164076811, 7.166278581, 8.178196077, 9.184573215, 10.16196427, 11.113242845, 12.066531174, 13.012937118, 13.981620827, 14.969363733, 16], False, 3, [1, 1, 1, 1, 1, 1, 1, 1, 1, 1, 1, 1, 1, 1, 1, 1, 1, 1, 1], False), False)  # 42
sketch7.addGeometry(Part.BSplineCurve([Vector(5.447224, 6.35808, 0), Vector(5.418934, 6.430798, 0), Vector(5.36282, 6.575042, 0), Vector(5.255413, 6.779194, 0), Vector(5.134752, 6.97333, 0), Vector(4.999067, 7.15454, 0), Vector(4.847347, 7.32297, 0), Vector(4.681616, 7.478792, 0), Vector(4.500395, 7.624151, 0), Vector(4.303753, 7.755245, 0), Vector(4.095176, 7.873355, 0), Vector(3.875726, 7.973471, 0), Vector(3.648685, 8.060719, 0), Vector(3.412791, 8.133216, 0), Vector(3.166865, 8.188591, 0), Vector(2.911254, 8.225884, 0), Vector(2.647259, 8.251366, 0), Vector(2.468119, 8.25359, 0), Vector(2.377512, 8.254715, 0)], [4, 1, 1, 1, 1, 1, 1, 1, 1, 1, 1, 1, 1, 1, 1, 1, 4], [0, 0.971157749, 1.926390409, 2.867917292, 3.816032967, 4.741824403, 5.6878893, 6.646452846, 7.631864642, 8.628382992, 9.628642509, 10.633224323, 11.656081692, 12.699617594, 13.76949873, 14.871843985, 16], False, 3, [1, 1, 1, 1, 1, 1, 1, 1, 1, 1, 1, 1, 1, 1, 1, 1, 1, 1, 1], False), False)  # 43
sketch7.addGeometry(Part.BSplineCurve([Vector(7.961647, 7.793177, 0), Vector(7.831572, 7.78825, 0), Vector(7.575268, 7.778544, 0), Vector(7.199658, 7.710807, 0), Vector(6.842854, 7.59371, 0), Vector(6.505646, 7.432519, 0), Vector(6.191994, 7.228072, 0), Vector(5.90794, 6.979969, 0), Vector(5.654954, 6.689672, 0), Vector(5.517273, 6.469897, 0), Vector(5.447224, 6.35808, 0)], [4, 1, 1, 1, 1, 1, 1, 1, 4], [0, 1.027701034, 2.025011931, 3.004147813, 3.986880317, 4.970346872, 5.953160964, 6.958619193, 8], False, 3, [1, 1, 1, 1, 1, 1, 1, 1, 1, 1, 1], False), False)  # 44
sketch7.addGeometry(Part.BSplineCurve([Vector(11.108282, 4.88933, 0), Vector(11.105555, 4.99043, 0), Vector(11.100205, 5.18878, 0), Vector(11.056686, 5.480237, 0), Vector(10.979854, 5.757907, 0), Vector(10.881809, 6.026068, 0), Vector(10.745231, 6.277428, 0), Vector(10.587176, 6.52014, 0), Vector(10.396187, 6.748621, 0), Vector(10.177194, 6.959886, 0), Vector(9.943111, 7.156839, 0), Vector(9.690759, 7.324416, 0), Vector(9.430593, 7.470748, 0), Vector(9.157422, 7.588704, 0), Vector(8.873189, 7.680393, 0), Vector(8.578388, 7.744055, 0), Vector(8.273859, 7.787936, 0), Vector(8.066774, 7.791412, 0), Vector(7.961647, 7.793177, 0)], [4, 1, 1, 1, 1, 1, 1, 1, 1, 1, 1, 1, 1, 1, 1, 1, 4], [0, 1.018635126, 1.998506719, 2.96030997, 3.918683232, 4.868719089, 5.836268132, 6.834011598, 7.861887245, 8.899958098, 9.91230014, 10.909978245, 11.904579616, 12.905650751, 13.91466998, 14.941371293, 16], False, 3, [1, 1, 1, 1, 1, 1, 1, 1, 1, 1, 1, 1, 1, 1, 1, 1, 1, 1, 1], False), False)  # 45
sketch7.addGeometry(Part.BSplineCurve([Vector(9.992897, 2.591253, 0), Vector(10.082013, 2.66791, 0), Vector(10.256359, 2.817881, 0), Vector(10.483761, 3.071105, 0), Vector(10.676768, 3.337669, 0), Vector(10.835124, 3.619879, 0), Vector(10.958228, 3.915924, 0), Vector(11.044683, 4.227573, 0), Vector(11.099665, 4.55324, 0), Vector(11.105379, 4.776126, 0), Vector(11.108282, 4.88933, 0)], [4, 1, 1, 1, 1, 1, 1, 1, 4], [0, 1.065406432, 2.084352066, 3.078868942, 4.045367136, 5.013203651, 5.979674514, 6.9738726, 8], False, 3, [1, 1, 1, 1, 1, 1, 1, 1, 1, 1, 1], False), False)  # 46
sketch7.addGeometry(Part.BSplineCurve([Vector(7.877512, 1.793177, 0), Vector(7.985105, 1.806156, 0), Vector(8.19492, 1.831468, 0), Vector(8.500625, 1.893079, 0), Vector(8.789725, 1.969009, 0), Vector(9.063857, 2.060671, 0), Vector(9.320418, 2.168003, 0), Vector(9.560896, 2.29271, 0), Vector(9.787587, 2.429304, 0), Vector(9.925017, 2.53771, 0), Vector(9.992897, 2.591253, 0)], [4, 1, 1, 1, 1, 1, 1, 1, 4], [0, 1.13409845, 2.211599726, 3.261451197, 4.261463951, 5.235132031, 6.169264622, 7.095758548, 8], False, 3, [1, 1, 1, 1, 1, 1, 1, 1, 1, 1, 1], False), False)  # 47
sketch7.addConstraint([
    Sketcher.Constraint("Block", 21),
    Sketcher.Constraint("Block", 22),
    Sketcher.Constraint("Block", 25),
    Sketcher.Constraint("Block", 26),
    Sketcher.Constraint("Block", 28),
    Sketcher.Constraint("Block", 29),
    Sketcher.Constraint("Block", 30),
    Sketcher.Constraint("Block", 31),
    Sketcher.Constraint("Block", 33),
    Sketcher.Constraint("Block", 34),
    Sketcher.Constraint("Block", 35),
    Sketcher.Constraint("Block", 37),
    Sketcher.Constraint("Block", 38),
    Sketcher.Constraint("Block", 39),
    Sketcher.Constraint("Block", 41),
    Sketcher.Constraint("Block", 42),
    Sketcher.Constraint("Block", 43),
    Sketcher.Constraint("Block", 44),
    Sketcher.Constraint("Block", 45),
    Sketcher.Constraint("Block", 46),
    Sketcher.Constraint("Block", 47),
    Sketcher.Constraint("Coincident", 13, 2, 14, 1),
    Sketcher.Constraint("Coincident", 14, 2, 15, 1),
    Sketcher.Constraint("Coincident", 15, 2, 16, 1),
    Sketcher.Constraint("Coincident", 16, 2, 17, 1),
    Sketcher.Constraint("Coincident", 17, 2, 18, 1),
    Sketcher.Constraint("Coincident", 18, 2, 19, 1),
    Sketcher.Constraint("Coincident", 19, 2, 20, 1),
    Sketcher.Constraint("Coincident", 20, 2, 21, 2),
    Sketcher.Constraint("Coincident", 22, 1, 13, 1),
    Sketcher.Constraint("Coincident", 23, 2, 24, 1),
    Sketcher.Constraint("Coincident", 24, 2, 25, 2),
    Sketcher.Constraint("Coincident", 26, 1, 27, 1),
    Sketcher.Constraint("Coincident", 27, 2, 23, 1),
    Sketcher.Constraint("Coincident", 32, 2, 33, 2),
    Sketcher.Constraint("Coincident", 35, 1, 36, 1),
    Sketcher.Constraint("Coincident", 36, 2, 37, 2),
    Sketcher.Constraint("Coincident", 39, 1, 40, 1),
    Sketcher.Constraint("Coincident", 40, 2, 41, 2),
    Sketcher.Constraint("Coincident", 47, 1, 32, 1),
    Sketcher.Constraint("Vertical", 0),
    Sketcher.Constraint("Vertical", 2),
    Sketcher.Constraint("Vertical", 5),
    Sketcher.Constraint("Vertical", 8),
    Sketcher.Constraint("Vertical", 10),
    Sketcher.Constraint("Vertical", 13),
    Sketcher.Constraint("Horizontal", 14),
    Sketcher.Constraint("Vertical", 15),
    Sketcher.Constraint("Horizontal", 16),
    Sketcher.Constraint("Vertical", 17),
    Sketcher.Constraint("Vertical", 19),
    Sketcher.Constraint("Horizontal", 23),
    Sketcher.Constraint("Vertical", 24),
    Sketcher.Constraint("Vertical", 27),
    Sketcher.Constraint("DistanceX", 14, 2, 14, 1, 12.0),
    Sketcher.Constraint("DistanceX", 1, 2, 0, 2, 12.0),
    Sketcher.Constraint("DistanceY", 1, 2, 3, 2, 3.0),
    Sketcher.Constraint("DistanceX", 4, 2, 0, 2, 12.0),
    Sketcher.Constraint("DistanceY", 6, 2, 8, 2, 3.0),
    Sketcher.Constraint("DistanceX", 7, 2, 9, 2, 12.0),
    Sketcher.Constraint("DistanceX", 5, 2, 10, 2, 12.0),
    Sketcher.Constraint("DistanceY", 19, 2, 36, 2, 5.4),
    Sketcher.Constraint("DistanceY", 16, 2, 20, 2, 2.25),
    Sketcher.Constraint("DistanceY", 23, 2, 20, 2, 2.25),
    Sketcher.Constraint("DistanceY", 12, 2, 10, 2, 4.375),
    Sketcher.Constraint("DistanceX", 16, 1, 16, 2, 5.230769),
    Sketcher.Constraint("DistanceY", 5, 1, 5, 2, 1.882212),
    Sketcher.Constraint("DistanceY", 13, 2, 13, 1, 2.038462),
    Sketcher.Constraint("DistanceY", 6, 2, -1, 1, 11.7299),
    Sketcher.Constraint("DistanceY", 11, 2, 5, 2, 0.9375),
    Sketcher.Constraint("Distance", 1, 12.132189),
    Sketcher.Constraint("Distance", 4, 7.83327),
    Sketcher.Constraint("Distance", 9, 12.132189),
    Sketcher.Constraint("Distance", 12, 8.650709),
    Sketcher.Constraint("DistanceY", 0, 2, 0, 1, 1.951923),
    Sketcher.Constraint("DistanceY", 2, 1, 2, 2, 1.872596),
    Sketcher.Constraint("DistanceY", 8, 1, 8, 2, 1.872596),
    Sketcher.Constraint("DistanceY", 10, 2, 10, 1, 1.947115),
    Sketcher.Constraint("DistanceY", 17, 1, 17, 2, 0.271635),
    Sketcher.Constraint("DistanceY", 19, 1, 19, 2, 2.088942),
    Sketcher.Constraint("DistanceX", -1, 1, 0, 2, 10.800589),
    Sketcher.Constraint("DistanceY", 4, 2, -1, 1, 15.597689),
    Sketcher.Constraint("DistanceX", 18, 2, -1, 1, 1.199411),
    Sketcher.Constraint("DistanceX", 11, 2, 6, 2, 3.949519),
])
pocket2 = doc.addObject("PartDesign::Pocket", "Pocket001")
body.addObject(pocket2)
pocket2.Profile = sketch7
pocket2.Length = 1
pocket2.Reversed = True

# Sketch on XY plane
sketch8 = doc.addObject("Sketcher::SketchObject", "Sketch007")
body.addObject(sketch8)
sketch8.AttachmentSupport = (doc.XY_Plane, [""])
sketch8.MapMode = "FlatFace"
sketch8.addGeometry([
    Part.Circle(Vector(5.3, 21.9, 0), Vector(0, 0, 1), 1.7),
    Part.Circle(Vector(-10.9, 21.9, 0), Vector(0, 0, 1), 1.7),
    Part.Circle(Vector(-27.2, 21.9, 0), Vector(0, 0, 1), 1.7),
], False)
sketch8.addConstraint([
    Sketcher.Constraint("Equal", 0, 1),
    Sketcher.Constraint("Equal", 1, 2),
    Sketcher.Constraint("Horizontal", 0, 3, 1, 3),
    Sketcher.Constraint("Horizontal", 1, 3, 2, 3),
    Sketcher.Constraint("Diameter", 0, 3.4),
    Sketcher.Constraint("DistanceX", 2, 3, 0, 3, 32.5),
    Sketcher.Constraint("DistanceX", 1, 3, 0, 3, 16.25),
    Sketcher.Constraint("DistanceX", -1, 1, 0, 3, 5.300589),
    Sketcher.Constraint("DistanceY", -1, 1, 0, 3, 21.916253),
])
pocket3 = doc.addObject("PartDesign::Pocket", "Pocket002")
body.addObject(pocket3)
pocket3.Profile = sketch8
pocket3.Length = 5
pocket3.Reversed = True

# Sketch on YZ plane
sketch9 = doc.addObject("Sketcher::SketchObject", "Sketch008")
body.addObject(sketch9)
sketch9.AttachmentSupport = (doc.YZ_Plane, [""])
sketch9.MapMode = "FlatFace"
sketch9.AttachmentOffset = App.Placement(Vector(0, 0, -5.699411), App.Rotation())
sketch9.addGeometry(Part.Circle(Vector(-1.1, 10.5, 0), Vector(0, 0, 1), 1.7), False)
sketch9.addConstraint([
    Sketcher.Constraint("Diameter", 0, 3.4),
    Sketcher.Constraint("DistanceY", -1, 1, 0, 3, 10.5),
    Sketcher.Constraint("DistanceX", 0, 3, -1, 1, 1.083747),
])
pocket4 = doc.addObject("PartDesign::Pocket", "Pocket003")
body.addObject(pocket4)
pocket4.Profile = sketch9
pocket4.Length = 45
pocket4.Reversed = True

# Sketch on YZ plane
sketch10 = doc.addObject("Sketcher::SketchObject", "Sketch009")
body.addObject(sketch10)
sketch10.AttachmentSupport = (doc.YZ_Plane, [""])
sketch10.MapMode = "FlatFace"
sketch10.AttachmentOffset = App.Placement(Vector(0, 0, 16.300589), App.Rotation())
sketch10.addGeometry([
    Part.Circle(Vector(21.9, 10.5, 0), Vector(0, 0, 1), 1.7),
    Part.Circle(Vector(21.9, 35.5, 0), Vector(0, 0, 1), 1.7),
], False)
sketch10.addConstraint([
    Sketcher.Constraint("Equal", 0, 1),
    Sketcher.Constraint("Vertical", 0, 3, 1, 3),
    Sketcher.Constraint("Diameter", 0, 3.4),
    Sketcher.Constraint("DistanceY", 0, 3, 1, 3, 25.0),
    Sketcher.Constraint("DistanceY", -1, 1, 0, 3, 10.5),
    Sketcher.Constraint("DistanceX", -1, 1, 0, 3, 21.916253),
])
pocket5 = doc.addObject("PartDesign::Pocket", "Pocket004")
body.addObject(pocket5)
pocket5.Profile = sketch10
pocket5.Length = 45

# Sketch on XZ plane
sketch11 = doc.addObject("Sketcher::SketchObject", "Sketch010")
body.addObject(sketch11)
sketch11.AttachmentSupport = (doc.XZ_Plane, [""])
sketch11.MapMode = "FlatFace"
sketch11.AttachmentOffset = App.Placement(Vector(0, 0, 23.083747), App.Rotation())
sketch11.addGeometry(Part.Circle(Vector(5.3, 9.8, 0), Vector(0, 0, 1), 1.7), False)
sketch11.addConstraint([
    Sketcher.Constraint("Diameter", 0, 3.4),
    Sketcher.Constraint("DistanceY", -1, 1, 0, 3, 9.75),
    Sketcher.Constraint("DistanceX", -1, 1, 0, 3, 5.300589),
])
pocket6 = doc.addObject("PartDesign::Pocket", "Pocket005")
body.addObject(pocket6)
pocket6.Profile = sketch11
pocket6.Length = 4
doc.recompute()

fillet2 = doc.addObject("PartDesign::Fillet", "Fillet001")
body.addObject(fillet2)
fillet2.Base = (pocket6, edges_at(pocket6, [
    (-5.699, -13.584, 0),
    (-10.093, 6.523, 0),
    (-27.199, 32.916, 19.5),
    (-6.593, 32.916, 23.893),
    (16.301, 32.916, 22.25),
    (-37.199, 32.916, 9.75),
    (16.301, -13.584, 19.5),
    (16.301, 10.916, 39.5),
    (-2.199, 32.916, 39.5),
    (16.301, 21.916, 44.5),
    (7.051, 32.916, 44.5),
    (-10.449, 32.916, 0),
    (16.301, 4.916, 0),
    (-28.949, 10.916, 0),
    (-37.199, 21.916, 0),
    (16.301, 6.523, 23.893),
]))
fillet2.Radius = 1

doc.recompute()
